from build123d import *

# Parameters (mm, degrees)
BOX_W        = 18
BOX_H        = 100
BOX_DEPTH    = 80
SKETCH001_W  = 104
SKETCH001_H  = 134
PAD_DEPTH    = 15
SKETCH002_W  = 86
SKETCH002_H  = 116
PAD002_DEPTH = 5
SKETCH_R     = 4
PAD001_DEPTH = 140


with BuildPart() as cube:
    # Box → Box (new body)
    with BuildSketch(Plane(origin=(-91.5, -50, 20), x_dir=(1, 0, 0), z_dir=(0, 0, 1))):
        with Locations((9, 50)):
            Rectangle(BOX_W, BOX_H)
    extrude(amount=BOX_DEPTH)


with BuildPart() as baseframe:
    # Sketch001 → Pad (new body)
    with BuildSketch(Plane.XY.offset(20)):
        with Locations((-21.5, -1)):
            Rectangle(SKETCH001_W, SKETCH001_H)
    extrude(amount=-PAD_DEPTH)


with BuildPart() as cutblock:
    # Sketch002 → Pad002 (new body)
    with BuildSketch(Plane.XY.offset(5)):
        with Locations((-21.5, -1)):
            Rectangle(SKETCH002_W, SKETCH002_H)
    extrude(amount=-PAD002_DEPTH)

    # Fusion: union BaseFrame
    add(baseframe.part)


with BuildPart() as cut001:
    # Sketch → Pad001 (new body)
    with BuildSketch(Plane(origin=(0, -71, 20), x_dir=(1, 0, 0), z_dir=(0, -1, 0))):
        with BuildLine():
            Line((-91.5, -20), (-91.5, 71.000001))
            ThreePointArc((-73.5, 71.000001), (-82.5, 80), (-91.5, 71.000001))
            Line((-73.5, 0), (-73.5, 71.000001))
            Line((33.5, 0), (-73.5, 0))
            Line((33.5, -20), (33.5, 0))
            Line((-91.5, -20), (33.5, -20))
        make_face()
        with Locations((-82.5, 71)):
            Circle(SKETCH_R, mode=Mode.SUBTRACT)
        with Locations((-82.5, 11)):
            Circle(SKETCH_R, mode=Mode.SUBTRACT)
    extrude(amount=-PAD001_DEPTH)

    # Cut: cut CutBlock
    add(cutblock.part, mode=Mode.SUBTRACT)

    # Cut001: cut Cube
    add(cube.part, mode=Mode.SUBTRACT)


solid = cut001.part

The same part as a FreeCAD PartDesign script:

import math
import FreeCAD as App
import Part
import Sketcher
from FreeCAD import Vector

doc = App.newDocument("Part")
params = doc.addObject("Spreadsheet::Sheet", "Params")
for row, (alias, value) in enumerate([
    ("sketch1_width", "18 mm"),
    ("sketch1_height", "100 mm"),
    ("pad1_length", "80 mm"),
    ("sketch2_width", "104 mm"),
    ("sketch2_height", "134 mm"),
    ("pad2_length", "15 mm"),
    ("sketch3_width", "86 mm"),
    ("sketch3_height", "116 mm"),
    ("pad3_length", "5 mm"),
    ("sketch4_diameter", "8 mm"),
    ("sketch4_radius", "9 mm"),
    ("sketch4_width", "125 mm"),
    ("sketch4_height", "91.000001 mm"),
    ("sketch4_height2", "20 mm"),
    ("pad4_length", "140 mm"),
], start=1):
    params.set(f"A{row}", alias)
    params.set(f"B{row}", "=" + value)
    params.setAlias(f"B{row}", alias)

body = doc.addObject("PartDesign::Body", "Body")

sketch1 = body.newObject("Sketcher::SketchObject", "Sketch")
sketch1.AttachmentSupport = (doc.getObject("XY_Plane"), [""])
sketch1.MapMode = "FlatFace"
sketch1.AttachmentOffset = App.Placement(Vector(0, 0, 20), App.Rotation())
sketch1.addGeometry([
    Part.LineSegment(Vector(-91.5, 50, 0), Vector(-91.5, -50, 0)),
    Part.LineSegment(Vector(-91.5, -50, 0), Vector(-73.5, -50, 0)),
    Part.LineSegment(Vector(-73.5, -50, 0), Vector(-73.5, 50, 0)),
    Part.LineSegment(Vector(-73.5, 50, 0), Vector(-91.5, 50, 0)),
], False)
sketch1.addConstraint([
    Sketcher.Constraint("Coincident", 0, 2, 1, 1),
    Sketcher.Constraint("Coincident", 1, 2, 2, 1),
    Sketcher.Constraint("Coincident", 2, 2, 3, 1),
    Sketcher.Constraint("Coincident", 3, 2, 0, 1),
    Sketcher.Constraint("Vertical", 0),
    Sketcher.Constraint("Horizontal", 1),
    Sketcher.Constraint("Vertical", 2),
    Sketcher.Constraint("Horizontal", 3),
    Sketcher.Constraint("DistanceX", 1, 1, 1, 2, 18.0),
    Sketcher.Constraint("DistanceY", 0, 2, 0, 1, 100.0),
    Sketcher.Constraint("DistanceY", 0, 2, -1, 1, 50.0),
    Sketcher.Constraint("DistanceX", 0, 2, -1, 1, 91.5),
])
sketch1.setExpression("Constraints[8]", "Params.sketch1_width")
sketch1.setExpression("Constraints[9]", "Params.sketch1_height")
pad1 = body.newObject("PartDesign::Pad", "Pad")
pad1.Profile = sketch1
pad1.setExpression("Length", "Params.pad1_length")
body2 = doc.addObject("PartDesign::Body", "Body001")

sketch2 = body2.newObject("Sketcher::SketchObject", "Sketch001")
sketch2.AttachmentSupport = (doc.getObject("XY_Plane001"), [""])
sketch2.MapMode = "FlatFace"
sketch2.AttachmentOffset = App.Placement(Vector(0, 0, 20), App.Rotation())
sketch2.addGeometry([
    Part.LineSegment(Vector(-73.5, 66, 0), Vector(-73.5, -68, 0)),
    Part.LineSegment(Vector(-73.5, -68, 0), Vector(30.5, -68, 0)),
    Part.LineSegment(Vector(30.5, -68, 0), Vector(30.5, 66, 0)),
    Part.LineSegment(Vector(30.5, 66, 0), Vector(-73.5, 66, 0)),
], False)
sketch2.addConstraint([
    Sketcher.Constraint("Coincident", 0, 2, 1, 1),
    Sketcher.Constraint("Coincident", 1, 2, 2, 1),
    Sketcher.Constraint("Coincident", 2, 2, 3, 1),
    Sketcher.Constraint("Coincident", 3, 2, 0, 1),
    Sketcher.Constraint("Vertical", 0),
    Sketcher.Constraint("Horizontal", 1),
    Sketcher.Constraint("Vertical", 2),
    Sketcher.Constraint("Horizontal", 3),
    Sketcher.Constraint("DistanceX", 1, 1, 1, 2, 104.0),
    Sketcher.Constraint("DistanceY", 0, 2, 0, 1, 134.0),
    Sketcher.Constraint("DistanceY", 0, 2, -1, 1, 68.0),
    Sketcher.Constraint("DistanceX", 0, 2, -1, 1, 73.5),
])
sketch2.setExpression("Constraints[8]", "Params.sketch2_width")
sketch2.setExpression("Constraints[9]", "Params.sketch2_height")
pad2 = body2.newObject("PartDesign::Pad", "Pad001")
pad2.Profile = sketch2
pad2.setExpression("Length", "Params.pad2_length")
pad2.Reversed = True
body3 = doc.addObject("PartDesign::Body", "Body002")

sketch3 = body3.newObject("Sketcher::SketchObject", "Sketch002")
sketch3.AttachmentSupport = (doc.getObject("XY_Plane002"), [""])
sketch3.MapMode = "FlatFace"
sketch3.AttachmentOffset = App.Placement(Vector(0, 0, 5), App.Rotation())
sketch3.addGeometry([
    Part.LineSegment(Vector(-64.5, 57, 0), Vector(-64.5, -59, 0)),
    Part.LineSegment(Vector(-64.5, -59, 0), Vector(21.5, -59, 0)),
    Part.LineSegment(Vector(21.5, -59, 0), Vector(21.5, 57, 0)),
    Part.LineSegment(Vector(21.5, 57, 0), Vector(-64.5, 57, 0)),
], False)
sketch3.addConstraint([
    Sketcher.Constraint("Coincident", 0, 2, 1, 1),
    Sketcher.Constraint("Coincident", 1, 2, 2, 1),
    Sketcher.Constraint("Coincident", 2, 2, 3, 1),
    Sketcher.Constraint("Coincident", 3, 2, 0, 1),
    Sketcher.Constraint("Vertical", 0),
    Sketcher.Constraint("Horizontal", 1),
    Sketcher.Constraint("Vertical", 2),
    Sketcher.Constraint("Horizontal", 3),
    Sketcher.Constraint("DistanceX", 1, 1, 1, 2, 86.0),
    Sketcher.Constraint("DistanceY", 0, 2, 0, 1, 116.0),
    Sketcher.Constraint("DistanceY", 0, 2, -1, 1, 59.0),
    Sketcher.Constraint("DistanceX", 0, 2, -1, 1, 64.5),
])
sketch3.setExpression("Constraints[8]", "Params.sketch3_width")
sketch3.setExpression("Constraints[9]", "Params.sketch3_height")
pad3 = body3.newObject("PartDesign::Pad", "Pad002")
pad3.Profile = sketch3
pad3.setExpression("Length", "Params.pad3_length")
pad3.Reversed = True
doc.recompute()

boolean = body3.newObject("PartDesign::Boolean", "Boolean")
boolean.Type = "Fuse"
boolean.addObjects([body2])
body4 = doc.addObject("PartDesign::Body", "Body003")

sketch4 = body4.newObject("Sketcher::SketchObject", "Sketch003")
sketch4.AttachmentSupport = (doc.getObject("XZ_Plane003"), [""])
sketch4.MapMode = "FlatFace"
sketch4.AttachmentOffset = App.Placement(Vector(0, 0, 71), App.Rotation())
sketch4.addGeometry([
    Part.LineSegment(Vector(-91.5, 91.000001, 0), Vector(-91.5, 0, 0)),
    Part.LineSegment(Vector(-91.5, 0, 0), Vector(33.5, 0, 0)),
    Part.LineSegment(Vector(33.5, 0, 0), Vector(33.5, 20, 0)),
    Part.LineSegment(Vector(33.5, 20, 0), Vector(-73.5, 20, 0)),
    Part.LineSegment(Vector(-73.5, 20, 0), Vector(-73.5, 91.000001, 0)),
    Part.ArcOfCircle(Part.Circle(Vector(-82.5, 91, 0), Vector(0, 0, 1), 9), math.radians(0.000006), math.radians(179.999994)),
    Part.Circle(Vector(-82.5, 31, 0), Vector(0, 0, 1), 4),
    Part.Circle(Vector(-82.5, 91, 0), Vector(0, 0, 1), 4),
], False)
sketch4.addConstraint([
    Sketcher.Constraint("Coincident", 0, 2, 1, 1),
    Sketcher.Constraint("Coincident", 1, 2, 2, 1),
    Sketcher.Constraint("Coincident", 2, 2, 3, 1),
    Sketcher.Constraint("Coincident", 3, 2, 4, 1),
    Sketcher.Constraint("Tangent", 4, 2, 5, 1),
    Sketcher.Constraint("Tangent", 5, 2, 0, 1),
    Sketcher.Constraint("Vertical", 0),
    Sketcher.Constraint("Horizontal", 1),
    Sketcher.Constraint("Vertical", 2),
    Sketcher.Constraint("Horizontal", 3),
    Sketcher.Constraint("Vertical", 4),
    Sketcher.Constraint("Coincident", 7, 3, 5, 3),
    Sketcher.Constraint("Equal", 6, 7),
    Sketcher.Constraint("PointOnObject", 0, 2, -1),
    Sketcher.Constraint("Vertical", 5, 3, 6, 3),
    Sketcher.Constraint("Diameter", 6, 8.0),
    Sketcher.Constraint("Radius", 5, 9.0),
    Sketcher.Constraint("DistanceX", 1, 1, 1, 2, 125.0),
    Sketcher.Constraint("DistanceY", 0, 2, 0, 1, 91.000001),
    Sketcher.Constraint("DistanceY", 2, 1, 2, 2, 20.0),
    Sketcher.Constraint("DistanceY", -1, 1, 6, 3, 31.0),
    Sketcher.Constraint("DistanceX", 5, 3, -1, 1, 82.5),
])
sketch4.setExpression("Constraints[15]", "Params.sketch4_diameter")
sketch4.setExpression("Constraints[16]", "Params.sketch4_radius")
sketch4.setExpression("Constraints[17]", "Params.sketch4_width")
sketch4.setExpression("Constraints[18]", "Params.sketch4_height")
sketch4.setExpression("Constraints[19]", "Params.sketch4_height2")
pad4 = body4.newObject("PartDesign::Pad", "Pad003")
pad4.Profile = sketch4
pad4.setExpression("Length", "Params.pad4_length")
pad4.Reversed = True
doc.recompute()

boolean2 = body4.newObject("PartDesign::Boolean", "Boolean001")
boolean2.Type = "Cut"
boolean2.addObjects([body3])
doc.recompute()

boolean3 = body4.newObject("PartDesign::Boolean", "Boolean002")
boolean3.Type = "Cut"
boolean3.addObjects([body])

doc.recompute()
